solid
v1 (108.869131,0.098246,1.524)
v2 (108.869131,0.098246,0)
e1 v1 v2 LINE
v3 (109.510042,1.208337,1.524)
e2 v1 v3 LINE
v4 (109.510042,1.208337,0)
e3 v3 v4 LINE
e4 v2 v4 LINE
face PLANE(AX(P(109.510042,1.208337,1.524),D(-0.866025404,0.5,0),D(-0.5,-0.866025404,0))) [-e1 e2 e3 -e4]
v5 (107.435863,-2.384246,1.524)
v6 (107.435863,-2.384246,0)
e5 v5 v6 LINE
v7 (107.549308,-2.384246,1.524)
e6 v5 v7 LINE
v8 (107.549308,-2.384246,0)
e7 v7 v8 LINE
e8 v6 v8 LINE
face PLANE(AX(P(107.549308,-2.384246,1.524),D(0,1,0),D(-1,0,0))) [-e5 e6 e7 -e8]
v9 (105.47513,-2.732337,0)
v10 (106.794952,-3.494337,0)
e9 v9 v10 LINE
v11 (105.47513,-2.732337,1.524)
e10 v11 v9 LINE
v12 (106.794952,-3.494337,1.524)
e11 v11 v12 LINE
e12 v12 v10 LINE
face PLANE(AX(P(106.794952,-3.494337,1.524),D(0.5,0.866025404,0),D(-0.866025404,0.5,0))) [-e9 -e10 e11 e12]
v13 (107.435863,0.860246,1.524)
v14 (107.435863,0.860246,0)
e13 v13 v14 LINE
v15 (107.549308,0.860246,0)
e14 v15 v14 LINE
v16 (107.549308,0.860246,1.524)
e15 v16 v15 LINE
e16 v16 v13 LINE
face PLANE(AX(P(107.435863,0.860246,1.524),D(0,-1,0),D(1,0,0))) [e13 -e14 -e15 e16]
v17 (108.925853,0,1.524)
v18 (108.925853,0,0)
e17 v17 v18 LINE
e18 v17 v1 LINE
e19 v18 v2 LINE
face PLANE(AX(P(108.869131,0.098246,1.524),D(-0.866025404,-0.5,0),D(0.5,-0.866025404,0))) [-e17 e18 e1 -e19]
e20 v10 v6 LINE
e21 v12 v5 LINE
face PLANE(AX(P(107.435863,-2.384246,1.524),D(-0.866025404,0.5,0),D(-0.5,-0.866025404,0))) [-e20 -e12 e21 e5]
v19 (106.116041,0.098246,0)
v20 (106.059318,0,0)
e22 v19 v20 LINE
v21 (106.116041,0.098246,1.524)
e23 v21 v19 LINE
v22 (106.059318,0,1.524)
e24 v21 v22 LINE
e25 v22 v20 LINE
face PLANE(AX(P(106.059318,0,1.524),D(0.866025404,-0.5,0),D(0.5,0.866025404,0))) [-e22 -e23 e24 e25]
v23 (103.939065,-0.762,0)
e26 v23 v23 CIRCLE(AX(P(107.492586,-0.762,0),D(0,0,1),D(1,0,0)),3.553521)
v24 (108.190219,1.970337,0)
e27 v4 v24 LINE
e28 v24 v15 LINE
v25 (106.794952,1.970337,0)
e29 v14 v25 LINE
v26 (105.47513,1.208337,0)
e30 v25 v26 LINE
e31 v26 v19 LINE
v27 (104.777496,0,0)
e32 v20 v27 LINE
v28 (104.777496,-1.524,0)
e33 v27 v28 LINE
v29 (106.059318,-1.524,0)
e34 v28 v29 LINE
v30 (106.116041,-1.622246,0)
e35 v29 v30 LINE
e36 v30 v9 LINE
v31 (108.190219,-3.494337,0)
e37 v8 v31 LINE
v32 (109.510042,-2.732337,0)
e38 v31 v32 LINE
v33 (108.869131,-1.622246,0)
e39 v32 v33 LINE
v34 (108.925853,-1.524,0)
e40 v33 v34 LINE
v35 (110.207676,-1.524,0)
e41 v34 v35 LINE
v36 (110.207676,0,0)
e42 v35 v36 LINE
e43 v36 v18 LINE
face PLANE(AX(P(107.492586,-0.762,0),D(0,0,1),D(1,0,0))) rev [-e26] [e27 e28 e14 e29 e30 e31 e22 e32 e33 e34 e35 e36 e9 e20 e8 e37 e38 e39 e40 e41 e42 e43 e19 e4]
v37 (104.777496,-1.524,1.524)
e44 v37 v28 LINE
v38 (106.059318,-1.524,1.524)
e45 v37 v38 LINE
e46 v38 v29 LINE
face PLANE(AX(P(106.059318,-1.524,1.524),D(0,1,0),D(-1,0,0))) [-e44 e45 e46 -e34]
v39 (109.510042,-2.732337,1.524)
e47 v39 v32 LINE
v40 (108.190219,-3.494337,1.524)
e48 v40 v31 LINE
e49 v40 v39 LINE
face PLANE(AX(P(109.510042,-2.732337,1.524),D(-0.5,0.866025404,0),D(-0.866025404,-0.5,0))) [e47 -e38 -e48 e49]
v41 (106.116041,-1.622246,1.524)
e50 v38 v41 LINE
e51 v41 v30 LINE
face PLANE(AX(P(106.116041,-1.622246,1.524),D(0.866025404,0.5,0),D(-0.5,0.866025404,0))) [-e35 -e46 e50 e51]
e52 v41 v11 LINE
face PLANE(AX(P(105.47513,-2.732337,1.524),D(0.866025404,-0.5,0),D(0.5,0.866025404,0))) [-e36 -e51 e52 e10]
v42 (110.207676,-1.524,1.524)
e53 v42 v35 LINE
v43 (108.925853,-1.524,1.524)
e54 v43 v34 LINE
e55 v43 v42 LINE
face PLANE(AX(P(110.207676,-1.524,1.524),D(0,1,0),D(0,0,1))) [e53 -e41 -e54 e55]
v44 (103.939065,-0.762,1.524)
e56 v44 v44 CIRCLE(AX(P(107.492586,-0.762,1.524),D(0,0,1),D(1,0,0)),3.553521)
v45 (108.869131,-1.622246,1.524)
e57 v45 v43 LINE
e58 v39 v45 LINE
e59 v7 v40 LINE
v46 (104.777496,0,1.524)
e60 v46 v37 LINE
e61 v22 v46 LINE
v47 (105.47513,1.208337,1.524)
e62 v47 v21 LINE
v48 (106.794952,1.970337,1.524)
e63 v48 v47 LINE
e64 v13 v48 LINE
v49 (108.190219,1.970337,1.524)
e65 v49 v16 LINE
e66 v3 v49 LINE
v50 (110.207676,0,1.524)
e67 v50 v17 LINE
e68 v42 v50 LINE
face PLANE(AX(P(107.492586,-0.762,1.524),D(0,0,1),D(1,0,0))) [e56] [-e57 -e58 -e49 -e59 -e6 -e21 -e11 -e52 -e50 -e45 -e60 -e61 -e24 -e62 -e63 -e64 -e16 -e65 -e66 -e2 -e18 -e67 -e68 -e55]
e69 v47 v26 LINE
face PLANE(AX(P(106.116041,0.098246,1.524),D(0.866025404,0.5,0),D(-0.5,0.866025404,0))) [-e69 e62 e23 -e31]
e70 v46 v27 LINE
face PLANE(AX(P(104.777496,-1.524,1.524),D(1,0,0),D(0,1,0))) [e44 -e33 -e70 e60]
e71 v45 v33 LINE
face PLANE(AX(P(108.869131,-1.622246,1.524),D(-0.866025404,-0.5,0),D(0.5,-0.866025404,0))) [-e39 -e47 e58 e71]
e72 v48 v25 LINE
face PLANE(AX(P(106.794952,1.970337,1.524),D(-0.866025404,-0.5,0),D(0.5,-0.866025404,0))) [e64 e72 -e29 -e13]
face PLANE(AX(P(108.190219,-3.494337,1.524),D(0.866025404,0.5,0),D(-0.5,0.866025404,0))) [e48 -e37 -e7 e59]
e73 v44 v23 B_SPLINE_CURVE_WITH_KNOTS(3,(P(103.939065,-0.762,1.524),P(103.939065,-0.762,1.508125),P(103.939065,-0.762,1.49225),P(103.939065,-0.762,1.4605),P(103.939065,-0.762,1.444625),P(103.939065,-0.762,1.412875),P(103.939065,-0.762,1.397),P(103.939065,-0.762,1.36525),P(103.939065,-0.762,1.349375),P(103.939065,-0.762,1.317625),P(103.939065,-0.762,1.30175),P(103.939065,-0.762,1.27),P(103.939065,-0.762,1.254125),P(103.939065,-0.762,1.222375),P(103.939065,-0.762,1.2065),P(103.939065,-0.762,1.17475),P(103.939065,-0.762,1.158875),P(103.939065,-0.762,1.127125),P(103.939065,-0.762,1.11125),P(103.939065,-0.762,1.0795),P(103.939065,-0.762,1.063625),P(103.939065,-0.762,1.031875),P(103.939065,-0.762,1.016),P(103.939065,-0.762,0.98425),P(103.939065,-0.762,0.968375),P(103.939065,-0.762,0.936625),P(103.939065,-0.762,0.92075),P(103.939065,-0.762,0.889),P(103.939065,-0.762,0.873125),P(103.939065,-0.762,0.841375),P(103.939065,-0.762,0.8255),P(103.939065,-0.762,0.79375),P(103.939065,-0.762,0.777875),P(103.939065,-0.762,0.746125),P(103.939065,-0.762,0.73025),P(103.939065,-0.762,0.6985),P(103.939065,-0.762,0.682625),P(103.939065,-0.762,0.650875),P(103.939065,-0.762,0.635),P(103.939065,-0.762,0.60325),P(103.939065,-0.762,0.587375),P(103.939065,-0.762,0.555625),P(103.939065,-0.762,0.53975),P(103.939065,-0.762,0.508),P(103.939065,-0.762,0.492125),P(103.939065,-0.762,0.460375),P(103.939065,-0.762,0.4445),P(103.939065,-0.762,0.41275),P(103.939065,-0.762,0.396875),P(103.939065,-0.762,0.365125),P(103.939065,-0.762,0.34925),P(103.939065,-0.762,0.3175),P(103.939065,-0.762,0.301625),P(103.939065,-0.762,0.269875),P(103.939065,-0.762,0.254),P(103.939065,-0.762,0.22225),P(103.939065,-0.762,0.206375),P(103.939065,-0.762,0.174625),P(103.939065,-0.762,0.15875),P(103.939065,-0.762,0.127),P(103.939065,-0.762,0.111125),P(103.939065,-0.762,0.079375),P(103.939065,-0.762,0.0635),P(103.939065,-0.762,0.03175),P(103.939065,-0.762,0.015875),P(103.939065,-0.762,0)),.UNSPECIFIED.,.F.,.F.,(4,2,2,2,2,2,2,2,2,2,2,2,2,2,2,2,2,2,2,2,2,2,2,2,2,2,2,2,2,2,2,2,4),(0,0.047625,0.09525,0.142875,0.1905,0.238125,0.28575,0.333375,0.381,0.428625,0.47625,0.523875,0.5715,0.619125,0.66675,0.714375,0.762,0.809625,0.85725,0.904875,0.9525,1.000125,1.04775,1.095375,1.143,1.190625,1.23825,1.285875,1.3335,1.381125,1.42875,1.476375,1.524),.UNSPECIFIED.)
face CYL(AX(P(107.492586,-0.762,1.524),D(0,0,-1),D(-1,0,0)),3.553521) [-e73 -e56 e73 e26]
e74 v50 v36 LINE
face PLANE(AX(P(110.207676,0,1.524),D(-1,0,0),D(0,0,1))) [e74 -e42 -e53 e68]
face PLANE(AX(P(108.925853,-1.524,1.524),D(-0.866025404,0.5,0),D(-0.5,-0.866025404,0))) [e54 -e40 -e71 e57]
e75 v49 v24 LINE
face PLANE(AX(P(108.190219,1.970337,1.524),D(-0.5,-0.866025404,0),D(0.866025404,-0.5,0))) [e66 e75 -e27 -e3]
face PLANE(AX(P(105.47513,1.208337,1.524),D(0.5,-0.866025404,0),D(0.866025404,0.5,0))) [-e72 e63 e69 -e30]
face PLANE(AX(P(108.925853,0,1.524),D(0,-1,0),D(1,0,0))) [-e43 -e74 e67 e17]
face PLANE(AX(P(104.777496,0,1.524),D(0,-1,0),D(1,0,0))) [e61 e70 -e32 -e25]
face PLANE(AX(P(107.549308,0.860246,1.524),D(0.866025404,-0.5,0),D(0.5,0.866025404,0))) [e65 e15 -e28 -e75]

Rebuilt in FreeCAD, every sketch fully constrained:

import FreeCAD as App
import Part
import Sketcher
Q = App.Units.Quantity

doc = App.newDocument("Part")
params = doc.addObject("Spreadsheet::Sheet", "Params")
for row, (alias, value) in enumerate([
    ("sketch1_height", "0.06 in"),
    ("sketch1_length", "0.06 in"),
    ("pad1_length", "0.06 in"),
], start=1):
    params.set(f"A{row}", alias)
    params.set(f"B{row}", "=" + value)
    params.setAlias(f"B{row}", alias)

body = doc.addObject("PartDesign::Body", "Body")

sketch1 = body.newObject("Sketcher::SketchObject", "Sketch")
sketch1.AttachmentSupport = (doc.getObject("XY_Plane"), [""])
sketch1.MapMode = "FlatFace"
sketch1.addGeometry([
    Part.Circle(App.Vector(107.49, -0.76, 0), App.Vector(0, 0, 1), 3.55),
    Part.LineSegment(App.Vector(108.93, 0, 0), App.Vector(110.21, 0, 0)),
    Part.LineSegment(App.Vector(110.21, 0, 0), App.Vector(110.21, -1.52, 0)),
    Part.LineSegment(App.Vector(110.21, -1.52, 0), App.Vector(108.93, -1.52, 0)),
    Part.LineSegment(App.Vector(108.93, -1.52, 0), App.Vector(108.87, -1.62, 0)),
    Part.LineSegment(App.Vector(108.87, -1.62, 0), App.Vector(109.51, -2.73, 0)),
    Part.LineSegment(App.Vector(109.51, -2.73, 0), App.Vector(108.19, -3.49, 0)),
    Part.LineSegment(App.Vector(108.19, -3.49, 0), App.Vector(107.55, -2.38, 0)),
    Part.LineSegment(App.Vector(107.55, -2.38, 0), App.Vector(107.44, -2.38, 0)),
    Part.LineSegment(App.Vector(107.44, -2.38, 0), App.Vector(106.79, -3.49, 0)),
    Part.LineSegment(App.Vector(106.79, -3.49, 0), App.Vector(105.48, -2.73, 0)),
    Part.LineSegment(App.Vector(105.48, -2.73, 0), App.Vector(106.12, -1.62, 0)),
    Part.LineSegment(App.Vector(106.12, -1.62, 0), App.Vector(106.06, -1.52, 0)),
    Part.LineSegment(App.Vector(106.06, -1.52, 0), App.Vector(104.78, -1.52, 0)),
    Part.LineSegment(App.Vector(104.78, -1.52, 0), App.Vector(104.78, 0, 0)),
    Part.LineSegment(App.Vector(104.78, 0, 0), App.Vector(106.06, 0, 0)),
    Part.LineSegment(App.Vector(106.06, 0, 0), App.Vector(106.12, 0.1, 0)),
    Part.LineSegment(App.Vector(106.12, 0.1, 0), App.Vector(105.48, 1.21, 0)),
    Part.LineSegment(App.Vector(105.48, 1.21, 0), App.Vector(106.79, 1.97, 0)),
    Part.LineSegment(App.Vector(106.79, 1.97, 0), App.Vector(107.44, 0.86, 0)),
    Part.LineSegment(App.Vector(107.44, 0.86, 0), App.Vector(107.55, 0.86, 0)),
    Part.LineSegment(App.Vector(107.55, 0.86, 0), App.Vector(108.19, 1.97, 0)),
    Part.LineSegment(App.Vector(108.19, 1.97, 0), App.Vector(109.51, 1.21, 0)),
    Part.LineSegment(App.Vector(109.51, 1.21, 0), App.Vector(108.87, 0.1, 0)),
    Part.LineSegment(App.Vector(108.87, 0.1, 0), App.Vector(108.93, 0, 0)),
], False)
sketch1.addConstraint([
    Sketcher.Constraint("Coincident", 1, 2, 2, 1),
    Sketcher.Constraint("Coincident", 2, 2, 3, 1),
    Sketcher.Constraint("Coincident", 3, 2, 4, 1),
    Sketcher.Constraint("Coincident", 4, 2, 5, 1),
    Sketcher.Constraint("Coincident", 5, 2, 6, 1),
    Sketcher.Constraint("Coincident", 6, 2, 7, 1),
    Sketcher.Constraint("Coincident", 7, 2, 8, 1),
    Sketcher.Constraint("Coincident", 8, 2, 9, 1),
    Sketcher.Constraint("Coincident", 9, 2, 10, 1),
    Sketcher.Constraint("Coincident", 10, 2, 11, 1),
    Sketcher.Constraint("Coincident", 11, 2, 12, 1),
    Sketcher.Constraint("Coincident", 12, 2, 13, 1),
    Sketcher.Constraint("Coincident", 13, 2, 14, 1),
    Sketcher.Constraint("Coincident", 14, 2, 15, 1),
    Sketcher.Constraint("Coincident", 15, 2, 16, 1),
    Sketcher.Constraint("Coincident", 16, 2, 17, 1),
    Sketcher.Constraint("Coincident", 17, 2, 18, 1),
    Sketcher.Constraint("Coincident", 18, 2, 19, 1),
    Sketcher.Constraint("Coincident", 19, 2, 20, 1),
    Sketcher.Constraint("Coincident", 20, 2, 21, 1),
    Sketcher.Constraint("Coincident", 21, 2, 22, 1),
    Sketcher.Constraint("Coincident", 22, 2, 23, 1),
    Sketcher.Constraint("Coincident", 23, 2, 24, 1),
    Sketcher.Constraint("Coincident", 24, 2, 1, 1),
    Sketcher.Constraint("Horizontal", 1),
    Sketcher.Constraint("Vertical", 2),
    Sketcher.Constraint("Horizontal", 3),
    Sketcher.Constraint("Horizontal", 8),
    Sketcher.Constraint("Horizontal", 13),
    Sketcher.Constraint("Vertical", 14),
    Sketcher.Constraint("Horizontal", 15),
    Sketcher.Constraint("Horizontal", 20),
    Sketcher.Constraint("PointOnObject", 1, 2, -1),
    Sketcher.Constraint("PointOnObject", 14, 2, -1),
    Sketcher.Constraint("Perpendicular", 5, 6),
    Sketcher.Constraint("Perpendicular", 6, 7),
    Sketcher.Constraint("Parallel", 4, 9),
    Sketcher.Constraint("Perpendicular", 9, 10),
    Sketcher.Constraint("Perpendicular", 10, 11),
    Sketcher.Constraint("Parallel", 7, 12),
    Sketcher.Constraint("Parallel", 11, 16),
    Sketcher.Constraint("Parallel", 12, 17),
    Sketcher.Constraint("Perpendicular", 17, 18),
    Sketcher.Constraint("Perpendicular", 18, 19),
    Sketcher.Constraint("Parallel", 16, 21),
    Sketcher.Constraint("Perpendicular", 21, 22),
    Sketcher.Constraint("Perpendicular", 22, 23),
    Sketcher.Constraint("Parallel", 19, 24),
    Sketcher.Constraint("Horizontal", 6, 2, 9, 2),
    Sketcher.Constraint("Horizontal", 5, 2, 10, 2),
    Sketcher.Constraint("Horizontal", 4, 2, 11, 2),
    Sketcher.Constraint("Horizontal", 3, 2, 12, 2),
    Sketcher.Constraint("Horizontal", 18, 2, 21, 2),
    Sketcher.Constraint("Horizontal", 17, 2, 22, 2),
    Sketcher.Constraint("Horizontal", 16, 2, 23, 2),
    Sketcher.Constraint("Vertical", 12, 2, 15, 2),
    Sketcher.Constraint("Vertical", 11, 2, 16, 2),
    Sketcher.Constraint("Vertical", 10, 2, 17, 2),
    Sketcher.Constraint("Vertical", 9, 2, 18, 2),
    Sketcher.Constraint("Vertical", 8, 2, 19, 2),
    Sketcher.Constraint("Vertical", 7, 2, 20, 2),
    Sketcher.Constraint("Vertical", 6, 2, 21, 2),
    Sketcher.Constraint("Equal", 3, 13),
    Sketcher.Constraint("Equal", 5, 7),
    Sketcher.Constraint("Angle", 4, Q("-120 deg")),
    Sketcher.Constraint("DistanceY", 2, 2, 2, 1, Q("0.06 in")),
    Sketcher.Constraint("Distance", 6, Q("0.06 in")),
    Sketcher.Constraint("DistanceY", 0, 3, -1, 1, Q("0.03 in")),
    Sketcher.Constraint("Diameter", 0, Q("7.107042 mm")),
    Sketcher.Constraint("DistanceX", 1, 1, 1, 2, Q("1.281822 mm")),
    Sketcher.Constraint("DistanceX", 8, 2, 8, 1, Q("0.113445 mm")),
    Sketcher.Constraint("DistanceX", -1, 1, 4, 2, Q("108.869131 mm")),
    Sketcher.Constraint("DistanceX", -1, 1, 6, 2, Q("108.190219 mm")),
    Sketcher.Constraint("DistanceX", -1, 1, 12, 2, Q("106.059318 mm")),
    Sketcher.Constraint("DistanceX", 0, 3, 1, 2, Q("2.71509 mm")),
])
sketch1.setExpression("Constraints[65]", "Params.sketch1_height")
sketch1.setExpression("Constraints[66]", "Params.sketch1_length")
pad1 = body.newObject("PartDesign::Pad", "Pad")
pad1.Profile = sketch1
pad1.setExpression("Length", "Params.pad1_length")

doc.recompute()
